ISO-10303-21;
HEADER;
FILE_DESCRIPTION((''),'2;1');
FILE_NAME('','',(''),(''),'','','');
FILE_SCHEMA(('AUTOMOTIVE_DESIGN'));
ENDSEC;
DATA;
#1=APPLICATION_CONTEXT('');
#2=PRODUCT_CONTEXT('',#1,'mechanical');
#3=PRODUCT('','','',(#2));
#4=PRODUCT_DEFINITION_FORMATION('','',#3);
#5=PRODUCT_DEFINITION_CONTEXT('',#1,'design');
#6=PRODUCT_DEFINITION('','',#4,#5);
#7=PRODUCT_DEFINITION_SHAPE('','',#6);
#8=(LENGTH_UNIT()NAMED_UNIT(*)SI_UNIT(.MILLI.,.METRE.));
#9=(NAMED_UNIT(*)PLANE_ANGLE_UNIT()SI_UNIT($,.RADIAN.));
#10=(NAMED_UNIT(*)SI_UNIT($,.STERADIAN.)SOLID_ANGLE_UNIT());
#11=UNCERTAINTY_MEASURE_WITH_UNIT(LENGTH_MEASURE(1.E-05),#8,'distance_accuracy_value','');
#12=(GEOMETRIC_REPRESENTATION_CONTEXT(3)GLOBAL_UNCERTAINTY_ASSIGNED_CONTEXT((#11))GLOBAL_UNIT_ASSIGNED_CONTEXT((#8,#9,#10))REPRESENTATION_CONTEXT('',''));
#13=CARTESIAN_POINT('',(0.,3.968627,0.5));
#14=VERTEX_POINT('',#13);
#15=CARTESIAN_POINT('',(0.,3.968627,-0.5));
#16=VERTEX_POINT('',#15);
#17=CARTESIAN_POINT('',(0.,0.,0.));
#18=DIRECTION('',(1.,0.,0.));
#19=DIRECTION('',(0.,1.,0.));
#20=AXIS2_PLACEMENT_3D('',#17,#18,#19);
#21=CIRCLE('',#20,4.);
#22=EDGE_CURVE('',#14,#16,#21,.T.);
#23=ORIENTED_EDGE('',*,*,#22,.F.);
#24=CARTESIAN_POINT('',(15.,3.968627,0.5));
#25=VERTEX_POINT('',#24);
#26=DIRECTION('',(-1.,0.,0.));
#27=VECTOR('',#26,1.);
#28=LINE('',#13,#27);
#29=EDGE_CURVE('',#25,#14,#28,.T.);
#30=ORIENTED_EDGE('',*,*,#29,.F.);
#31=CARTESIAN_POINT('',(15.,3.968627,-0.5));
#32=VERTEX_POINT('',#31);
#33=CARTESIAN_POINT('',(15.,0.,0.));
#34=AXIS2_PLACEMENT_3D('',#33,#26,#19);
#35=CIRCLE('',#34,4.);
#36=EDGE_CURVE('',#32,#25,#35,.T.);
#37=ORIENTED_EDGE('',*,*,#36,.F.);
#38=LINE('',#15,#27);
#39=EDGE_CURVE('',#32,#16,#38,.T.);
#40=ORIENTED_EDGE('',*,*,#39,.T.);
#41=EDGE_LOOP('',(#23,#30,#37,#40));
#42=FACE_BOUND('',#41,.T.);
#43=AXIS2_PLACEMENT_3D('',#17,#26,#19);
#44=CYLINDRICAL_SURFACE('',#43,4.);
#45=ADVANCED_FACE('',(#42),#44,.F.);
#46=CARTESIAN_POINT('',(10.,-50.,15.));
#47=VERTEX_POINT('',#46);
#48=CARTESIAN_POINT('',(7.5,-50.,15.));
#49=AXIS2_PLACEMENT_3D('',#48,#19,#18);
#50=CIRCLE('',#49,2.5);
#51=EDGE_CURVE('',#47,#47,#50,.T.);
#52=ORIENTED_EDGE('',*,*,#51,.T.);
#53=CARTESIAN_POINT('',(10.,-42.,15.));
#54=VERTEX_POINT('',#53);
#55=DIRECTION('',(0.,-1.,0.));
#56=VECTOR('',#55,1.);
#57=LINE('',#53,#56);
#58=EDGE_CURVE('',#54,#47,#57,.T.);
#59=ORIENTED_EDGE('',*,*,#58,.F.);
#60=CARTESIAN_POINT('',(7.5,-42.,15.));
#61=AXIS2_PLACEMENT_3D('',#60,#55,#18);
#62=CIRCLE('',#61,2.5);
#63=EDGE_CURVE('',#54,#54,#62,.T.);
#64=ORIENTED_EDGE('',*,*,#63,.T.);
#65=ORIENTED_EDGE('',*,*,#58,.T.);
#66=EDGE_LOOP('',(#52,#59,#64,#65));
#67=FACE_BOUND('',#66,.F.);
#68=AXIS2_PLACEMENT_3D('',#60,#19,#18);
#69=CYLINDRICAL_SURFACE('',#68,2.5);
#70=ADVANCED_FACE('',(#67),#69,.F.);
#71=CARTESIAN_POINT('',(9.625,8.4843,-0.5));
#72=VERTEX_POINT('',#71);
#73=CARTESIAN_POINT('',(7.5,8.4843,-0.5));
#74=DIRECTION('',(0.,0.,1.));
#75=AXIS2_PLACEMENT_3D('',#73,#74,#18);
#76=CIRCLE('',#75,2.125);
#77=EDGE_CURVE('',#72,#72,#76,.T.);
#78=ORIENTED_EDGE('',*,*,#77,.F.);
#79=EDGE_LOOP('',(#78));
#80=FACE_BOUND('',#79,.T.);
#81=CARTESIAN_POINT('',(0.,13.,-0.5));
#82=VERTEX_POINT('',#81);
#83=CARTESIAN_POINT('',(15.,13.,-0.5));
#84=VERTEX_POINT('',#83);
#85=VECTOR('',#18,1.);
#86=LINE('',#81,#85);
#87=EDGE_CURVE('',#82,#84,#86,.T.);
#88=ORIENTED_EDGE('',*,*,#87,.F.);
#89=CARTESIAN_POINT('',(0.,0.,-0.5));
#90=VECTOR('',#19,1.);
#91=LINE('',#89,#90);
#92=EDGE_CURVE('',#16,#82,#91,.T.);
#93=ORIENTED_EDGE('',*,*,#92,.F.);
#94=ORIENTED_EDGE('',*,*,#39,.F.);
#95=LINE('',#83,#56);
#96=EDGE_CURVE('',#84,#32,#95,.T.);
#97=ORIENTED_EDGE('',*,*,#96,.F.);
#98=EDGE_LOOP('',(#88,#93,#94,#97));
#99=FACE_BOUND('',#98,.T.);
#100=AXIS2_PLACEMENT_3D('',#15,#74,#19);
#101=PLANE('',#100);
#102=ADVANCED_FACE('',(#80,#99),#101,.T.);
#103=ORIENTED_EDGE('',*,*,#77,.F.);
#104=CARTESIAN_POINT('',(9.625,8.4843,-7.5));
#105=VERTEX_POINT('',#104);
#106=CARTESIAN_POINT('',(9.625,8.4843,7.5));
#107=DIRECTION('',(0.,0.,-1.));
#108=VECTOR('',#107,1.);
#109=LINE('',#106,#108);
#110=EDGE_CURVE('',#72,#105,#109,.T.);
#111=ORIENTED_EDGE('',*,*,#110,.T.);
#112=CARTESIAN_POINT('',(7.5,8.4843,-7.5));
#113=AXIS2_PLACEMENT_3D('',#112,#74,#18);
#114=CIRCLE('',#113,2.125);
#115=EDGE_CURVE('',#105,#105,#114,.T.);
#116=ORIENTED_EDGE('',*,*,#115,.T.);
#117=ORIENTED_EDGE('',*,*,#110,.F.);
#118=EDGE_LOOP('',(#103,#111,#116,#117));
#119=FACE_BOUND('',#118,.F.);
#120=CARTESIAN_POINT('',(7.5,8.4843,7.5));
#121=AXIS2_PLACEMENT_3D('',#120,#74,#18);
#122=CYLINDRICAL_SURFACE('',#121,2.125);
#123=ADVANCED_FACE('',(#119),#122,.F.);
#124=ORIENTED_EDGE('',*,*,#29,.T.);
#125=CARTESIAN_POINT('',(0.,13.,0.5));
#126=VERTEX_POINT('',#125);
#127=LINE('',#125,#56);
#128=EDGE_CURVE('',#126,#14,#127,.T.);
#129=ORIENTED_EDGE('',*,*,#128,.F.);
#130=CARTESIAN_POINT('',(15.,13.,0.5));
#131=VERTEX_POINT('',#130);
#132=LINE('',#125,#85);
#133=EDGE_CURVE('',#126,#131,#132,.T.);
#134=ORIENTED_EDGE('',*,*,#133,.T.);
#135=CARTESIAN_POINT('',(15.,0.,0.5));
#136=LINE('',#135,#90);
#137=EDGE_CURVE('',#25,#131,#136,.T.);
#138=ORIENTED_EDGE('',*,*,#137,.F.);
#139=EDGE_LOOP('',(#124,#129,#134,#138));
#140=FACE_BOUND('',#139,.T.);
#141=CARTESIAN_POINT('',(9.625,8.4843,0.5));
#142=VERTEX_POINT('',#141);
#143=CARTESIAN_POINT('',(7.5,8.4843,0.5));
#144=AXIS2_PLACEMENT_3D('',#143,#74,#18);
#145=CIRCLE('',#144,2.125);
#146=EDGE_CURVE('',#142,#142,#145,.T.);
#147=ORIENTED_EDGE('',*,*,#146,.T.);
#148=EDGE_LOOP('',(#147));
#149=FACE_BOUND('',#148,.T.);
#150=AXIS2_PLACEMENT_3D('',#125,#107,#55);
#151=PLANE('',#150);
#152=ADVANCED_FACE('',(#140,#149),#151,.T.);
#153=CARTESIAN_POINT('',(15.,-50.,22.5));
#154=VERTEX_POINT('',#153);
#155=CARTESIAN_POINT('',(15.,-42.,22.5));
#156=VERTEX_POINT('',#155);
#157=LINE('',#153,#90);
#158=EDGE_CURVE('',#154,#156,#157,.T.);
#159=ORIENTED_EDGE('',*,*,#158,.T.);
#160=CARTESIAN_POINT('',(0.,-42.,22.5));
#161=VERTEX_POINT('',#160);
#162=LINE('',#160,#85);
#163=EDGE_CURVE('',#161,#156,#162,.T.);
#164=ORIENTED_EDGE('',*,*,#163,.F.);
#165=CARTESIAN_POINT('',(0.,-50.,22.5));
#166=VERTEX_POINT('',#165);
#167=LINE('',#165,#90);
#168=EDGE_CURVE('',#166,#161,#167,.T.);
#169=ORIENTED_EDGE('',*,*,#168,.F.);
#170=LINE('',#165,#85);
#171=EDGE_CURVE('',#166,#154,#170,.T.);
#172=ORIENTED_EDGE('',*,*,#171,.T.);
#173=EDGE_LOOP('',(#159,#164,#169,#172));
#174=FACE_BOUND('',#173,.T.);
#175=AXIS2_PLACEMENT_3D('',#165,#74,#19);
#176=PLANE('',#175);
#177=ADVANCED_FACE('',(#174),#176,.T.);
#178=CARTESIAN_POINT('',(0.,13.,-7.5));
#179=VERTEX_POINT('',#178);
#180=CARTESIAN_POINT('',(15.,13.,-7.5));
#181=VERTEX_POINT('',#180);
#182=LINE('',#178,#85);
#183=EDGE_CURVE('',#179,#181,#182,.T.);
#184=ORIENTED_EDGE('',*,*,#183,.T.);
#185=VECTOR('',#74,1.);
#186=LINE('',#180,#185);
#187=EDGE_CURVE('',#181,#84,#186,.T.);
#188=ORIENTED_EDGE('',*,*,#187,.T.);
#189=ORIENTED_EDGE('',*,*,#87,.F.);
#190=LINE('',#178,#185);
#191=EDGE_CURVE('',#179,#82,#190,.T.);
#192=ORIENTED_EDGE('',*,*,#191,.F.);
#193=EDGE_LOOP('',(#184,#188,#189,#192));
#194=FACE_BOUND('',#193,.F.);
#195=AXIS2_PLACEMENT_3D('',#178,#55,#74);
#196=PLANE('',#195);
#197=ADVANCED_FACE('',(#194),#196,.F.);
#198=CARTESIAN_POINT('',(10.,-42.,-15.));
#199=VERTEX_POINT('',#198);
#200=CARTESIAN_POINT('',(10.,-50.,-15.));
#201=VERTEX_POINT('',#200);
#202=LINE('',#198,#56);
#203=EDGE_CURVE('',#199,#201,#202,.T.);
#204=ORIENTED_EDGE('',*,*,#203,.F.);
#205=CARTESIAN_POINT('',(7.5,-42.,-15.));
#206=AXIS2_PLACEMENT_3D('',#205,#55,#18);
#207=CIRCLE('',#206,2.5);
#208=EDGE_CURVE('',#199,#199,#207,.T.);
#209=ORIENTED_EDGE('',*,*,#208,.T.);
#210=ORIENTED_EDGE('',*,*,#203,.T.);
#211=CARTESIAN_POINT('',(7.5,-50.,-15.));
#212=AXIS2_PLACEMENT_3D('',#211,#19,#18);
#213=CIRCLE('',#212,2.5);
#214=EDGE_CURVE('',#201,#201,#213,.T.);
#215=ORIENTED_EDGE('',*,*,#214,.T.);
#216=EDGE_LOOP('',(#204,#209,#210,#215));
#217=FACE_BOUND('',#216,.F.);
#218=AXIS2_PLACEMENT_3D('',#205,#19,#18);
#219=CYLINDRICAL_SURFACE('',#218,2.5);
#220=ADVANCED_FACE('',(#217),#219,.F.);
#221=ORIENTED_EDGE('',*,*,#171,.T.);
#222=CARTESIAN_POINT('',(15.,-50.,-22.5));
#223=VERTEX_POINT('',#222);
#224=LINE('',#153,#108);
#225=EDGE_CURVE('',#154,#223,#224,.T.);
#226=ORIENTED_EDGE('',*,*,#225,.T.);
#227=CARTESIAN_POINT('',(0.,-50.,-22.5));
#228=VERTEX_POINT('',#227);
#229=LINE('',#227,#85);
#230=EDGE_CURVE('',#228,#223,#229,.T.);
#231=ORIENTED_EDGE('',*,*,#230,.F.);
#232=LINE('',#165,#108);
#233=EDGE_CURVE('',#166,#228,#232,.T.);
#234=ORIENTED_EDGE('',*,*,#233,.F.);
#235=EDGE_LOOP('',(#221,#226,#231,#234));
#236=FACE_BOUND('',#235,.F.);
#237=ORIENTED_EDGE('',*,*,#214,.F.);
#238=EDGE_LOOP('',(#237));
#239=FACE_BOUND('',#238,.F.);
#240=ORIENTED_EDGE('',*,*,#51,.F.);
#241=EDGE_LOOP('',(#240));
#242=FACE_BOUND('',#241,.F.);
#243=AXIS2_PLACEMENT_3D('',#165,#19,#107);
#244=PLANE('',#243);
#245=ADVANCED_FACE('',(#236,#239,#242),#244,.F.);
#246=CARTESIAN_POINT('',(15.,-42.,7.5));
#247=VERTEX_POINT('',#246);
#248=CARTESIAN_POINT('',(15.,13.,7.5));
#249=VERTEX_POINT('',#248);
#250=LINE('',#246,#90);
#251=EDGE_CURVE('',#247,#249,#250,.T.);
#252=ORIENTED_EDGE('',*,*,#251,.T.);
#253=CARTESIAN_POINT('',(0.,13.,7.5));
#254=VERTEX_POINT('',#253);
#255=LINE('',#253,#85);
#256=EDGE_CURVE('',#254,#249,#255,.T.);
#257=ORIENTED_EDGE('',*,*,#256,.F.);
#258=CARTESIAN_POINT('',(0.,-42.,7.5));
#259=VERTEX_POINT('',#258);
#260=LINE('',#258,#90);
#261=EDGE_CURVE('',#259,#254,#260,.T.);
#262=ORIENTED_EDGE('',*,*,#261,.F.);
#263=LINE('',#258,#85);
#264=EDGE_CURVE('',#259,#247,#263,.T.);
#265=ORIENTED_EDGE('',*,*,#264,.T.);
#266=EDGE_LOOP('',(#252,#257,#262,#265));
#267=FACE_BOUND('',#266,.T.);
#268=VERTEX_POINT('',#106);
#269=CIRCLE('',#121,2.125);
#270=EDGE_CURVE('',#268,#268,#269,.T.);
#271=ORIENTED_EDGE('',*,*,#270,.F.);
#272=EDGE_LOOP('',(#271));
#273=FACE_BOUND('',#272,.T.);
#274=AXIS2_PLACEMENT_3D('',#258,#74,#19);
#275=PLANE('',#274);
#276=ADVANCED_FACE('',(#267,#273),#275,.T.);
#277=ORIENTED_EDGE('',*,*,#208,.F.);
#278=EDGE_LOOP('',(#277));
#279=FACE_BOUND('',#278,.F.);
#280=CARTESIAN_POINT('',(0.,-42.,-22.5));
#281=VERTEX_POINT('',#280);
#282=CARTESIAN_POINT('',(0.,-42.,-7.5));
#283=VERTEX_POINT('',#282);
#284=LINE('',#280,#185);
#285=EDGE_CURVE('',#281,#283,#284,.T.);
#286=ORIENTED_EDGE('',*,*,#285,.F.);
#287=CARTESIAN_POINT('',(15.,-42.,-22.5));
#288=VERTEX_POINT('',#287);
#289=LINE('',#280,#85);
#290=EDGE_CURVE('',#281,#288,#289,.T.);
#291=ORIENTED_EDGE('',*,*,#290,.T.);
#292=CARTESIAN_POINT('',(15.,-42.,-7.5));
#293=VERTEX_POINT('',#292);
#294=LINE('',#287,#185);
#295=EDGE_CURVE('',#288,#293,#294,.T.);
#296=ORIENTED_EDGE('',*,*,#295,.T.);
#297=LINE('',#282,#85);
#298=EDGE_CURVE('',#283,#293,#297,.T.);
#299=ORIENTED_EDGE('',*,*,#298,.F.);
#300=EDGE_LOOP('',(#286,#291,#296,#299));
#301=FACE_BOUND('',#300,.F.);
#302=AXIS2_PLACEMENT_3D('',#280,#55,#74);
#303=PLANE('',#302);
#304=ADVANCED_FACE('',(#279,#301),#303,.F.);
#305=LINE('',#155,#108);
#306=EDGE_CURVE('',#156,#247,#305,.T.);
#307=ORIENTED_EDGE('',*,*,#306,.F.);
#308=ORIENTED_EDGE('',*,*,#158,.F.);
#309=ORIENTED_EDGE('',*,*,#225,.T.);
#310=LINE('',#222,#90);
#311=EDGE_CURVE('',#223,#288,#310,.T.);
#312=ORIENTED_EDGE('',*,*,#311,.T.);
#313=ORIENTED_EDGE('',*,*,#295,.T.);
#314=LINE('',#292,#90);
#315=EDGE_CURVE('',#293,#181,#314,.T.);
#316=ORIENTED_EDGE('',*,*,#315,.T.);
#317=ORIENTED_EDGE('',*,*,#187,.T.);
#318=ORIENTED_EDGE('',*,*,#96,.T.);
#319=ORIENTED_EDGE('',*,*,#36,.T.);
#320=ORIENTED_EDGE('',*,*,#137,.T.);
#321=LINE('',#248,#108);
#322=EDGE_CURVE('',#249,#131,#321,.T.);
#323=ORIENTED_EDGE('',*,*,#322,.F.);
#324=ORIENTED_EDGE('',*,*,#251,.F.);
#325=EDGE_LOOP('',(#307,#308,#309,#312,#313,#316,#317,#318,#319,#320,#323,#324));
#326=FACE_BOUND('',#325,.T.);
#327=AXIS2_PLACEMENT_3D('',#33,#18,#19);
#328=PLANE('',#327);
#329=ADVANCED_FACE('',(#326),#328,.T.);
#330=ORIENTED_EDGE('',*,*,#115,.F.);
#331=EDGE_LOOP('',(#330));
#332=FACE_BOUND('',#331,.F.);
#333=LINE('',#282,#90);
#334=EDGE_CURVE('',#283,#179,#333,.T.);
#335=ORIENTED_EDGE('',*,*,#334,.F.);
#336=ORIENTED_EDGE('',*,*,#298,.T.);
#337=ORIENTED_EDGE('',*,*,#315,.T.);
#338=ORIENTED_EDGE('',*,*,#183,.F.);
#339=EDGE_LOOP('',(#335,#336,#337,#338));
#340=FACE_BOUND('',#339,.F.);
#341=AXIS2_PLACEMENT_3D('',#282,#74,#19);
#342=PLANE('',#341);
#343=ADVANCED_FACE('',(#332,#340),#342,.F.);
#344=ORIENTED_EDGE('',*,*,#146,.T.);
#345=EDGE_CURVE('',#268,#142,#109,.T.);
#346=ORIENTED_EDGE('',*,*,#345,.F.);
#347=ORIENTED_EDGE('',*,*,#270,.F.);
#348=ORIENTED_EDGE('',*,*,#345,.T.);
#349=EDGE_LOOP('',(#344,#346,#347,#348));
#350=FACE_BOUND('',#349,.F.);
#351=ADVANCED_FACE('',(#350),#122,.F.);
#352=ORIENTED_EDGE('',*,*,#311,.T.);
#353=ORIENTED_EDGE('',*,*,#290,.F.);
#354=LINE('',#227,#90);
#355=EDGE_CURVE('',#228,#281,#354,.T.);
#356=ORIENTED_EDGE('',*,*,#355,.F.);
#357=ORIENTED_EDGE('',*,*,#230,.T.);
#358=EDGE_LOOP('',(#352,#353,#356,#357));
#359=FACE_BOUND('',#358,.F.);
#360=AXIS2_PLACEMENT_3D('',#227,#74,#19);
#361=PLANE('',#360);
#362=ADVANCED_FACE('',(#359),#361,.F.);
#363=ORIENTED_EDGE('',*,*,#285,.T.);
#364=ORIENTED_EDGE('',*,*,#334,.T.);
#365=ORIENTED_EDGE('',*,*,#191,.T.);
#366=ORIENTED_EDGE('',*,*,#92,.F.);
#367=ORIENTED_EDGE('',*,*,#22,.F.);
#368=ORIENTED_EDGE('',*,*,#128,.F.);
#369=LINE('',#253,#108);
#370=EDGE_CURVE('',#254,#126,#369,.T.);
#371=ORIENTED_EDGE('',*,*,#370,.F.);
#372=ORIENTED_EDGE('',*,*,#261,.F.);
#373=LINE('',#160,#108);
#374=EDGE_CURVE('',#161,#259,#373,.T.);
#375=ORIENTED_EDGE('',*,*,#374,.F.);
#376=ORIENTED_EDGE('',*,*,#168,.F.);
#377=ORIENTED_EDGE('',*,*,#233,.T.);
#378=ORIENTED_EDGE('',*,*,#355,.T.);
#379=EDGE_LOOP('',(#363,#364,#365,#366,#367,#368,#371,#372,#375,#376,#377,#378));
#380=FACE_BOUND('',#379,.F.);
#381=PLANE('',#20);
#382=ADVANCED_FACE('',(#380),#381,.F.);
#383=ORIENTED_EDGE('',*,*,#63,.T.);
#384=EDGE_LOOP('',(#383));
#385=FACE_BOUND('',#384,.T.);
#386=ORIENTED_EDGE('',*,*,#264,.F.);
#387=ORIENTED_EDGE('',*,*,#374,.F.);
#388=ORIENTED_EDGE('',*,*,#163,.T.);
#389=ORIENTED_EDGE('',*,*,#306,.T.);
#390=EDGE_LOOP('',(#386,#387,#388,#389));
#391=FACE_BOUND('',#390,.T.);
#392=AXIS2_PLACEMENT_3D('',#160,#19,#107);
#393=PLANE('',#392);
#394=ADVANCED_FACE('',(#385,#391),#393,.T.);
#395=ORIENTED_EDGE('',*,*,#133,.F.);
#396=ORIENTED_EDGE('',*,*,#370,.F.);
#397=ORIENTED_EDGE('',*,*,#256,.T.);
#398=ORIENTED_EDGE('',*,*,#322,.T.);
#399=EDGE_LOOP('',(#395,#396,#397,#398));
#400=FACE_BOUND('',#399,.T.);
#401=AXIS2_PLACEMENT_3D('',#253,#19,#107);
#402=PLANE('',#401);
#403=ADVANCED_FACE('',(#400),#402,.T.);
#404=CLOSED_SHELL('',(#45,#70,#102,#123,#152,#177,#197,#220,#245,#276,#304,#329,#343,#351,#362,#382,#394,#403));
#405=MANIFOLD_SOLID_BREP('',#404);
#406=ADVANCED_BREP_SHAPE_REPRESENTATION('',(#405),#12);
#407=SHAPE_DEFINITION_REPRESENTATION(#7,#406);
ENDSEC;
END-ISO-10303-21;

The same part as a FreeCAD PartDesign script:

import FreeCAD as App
import Part
import Sketcher
from FreeCAD import Vector
Q = App.Units.Quantity


def add_polygon(sketch, points):
    """Adds a closed chain of lines whose ends are joined by coincident constraints."""
    first, n = sketch.GeometryCount, len(points)
    for a, b in zip(points, points[1:] + points[:1]):
        sketch.addGeometry(Part.LineSegment(App.Vector(*a, 0), App.Vector(*b, 0)), False)
    for i in range(n):
        sketch.addConstraint(Sketcher.Constraint("Coincident", first + i, 2, first + (i + 1) % n, 1))

doc = App.newDocument("Part")
body = doc.addObject("PartDesign::Body", "Body")

# Sketch on YZ plane
sketch1 = body.newObject("Sketcher::SketchObject", "Sketch")
sketch1.AttachmentSupport = (doc.getObject("YZ_Plane"), [""])
sketch1.MapMode = "FlatFace"
add_polygon(sketch1, [(-42, 22.5), (-50, 22.5), (-50, -22.5), (-42, -22.5), (-42, -7.5), (13, -7.5), (13, -0.5), (0, -0.5), (0, 0.5), (13, 0.5), (13, 7.5), (-42, 7.5)])  # lines 0-11
sketch1.addConstraint(Sketcher.Constraint("Horizontal", 0))
sketch1.addConstraint(Sketcher.Constraint("Vertical", 1))
sketch1.addConstraint(Sketcher.Constraint("Horizontal", 2))
sketch1.addConstraint(Sketcher.Constraint("Vertical", 3))
sketch1.addConstraint(Sketcher.Constraint("Horizontal", 4))
sketch1.addConstraint(Sketcher.Constraint("Vertical", 5))
sketch1.addConstraint(Sketcher.Constraint("Horizontal", 6))
sketch1.addConstraint(Sketcher.Constraint("Vertical", 7))
sketch1.addConstraint(Sketcher.Constraint("Horizontal", 8))
sketch1.addConstraint(Sketcher.Constraint("Vertical", 9))
sketch1.addConstraint(Sketcher.Constraint("Horizontal", 10))
sketch1.addConstraint(Sketcher.Constraint("Vertical", 11))
sketch1.addConstraint(Sketcher.Constraint("Symmetric", 6, 2, 7, 2, -1, 1))
sketch1.addConstraint(Sketcher.Constraint("Symmetric", 4, 2, 9, 2, -1))
sketch1.addConstraint(Sketcher.Constraint("Symmetric", 2, 2, 11, 2, -1))
sketch1.addConstraint(Sketcher.Constraint("DistanceX", 0, 2, 0, 1, Q("8 mm")))
sketch1.addConstraint(Sketcher.Constraint("DistanceX", 4, 1, 4, 2, Q("55 mm")))
sketch1.addConstraint(Sketcher.Constraint("DistanceY", 3, 1, 3, 2, Q("15 mm")))
sketch1.addConstraint(Sketcher.Constraint("DistanceY", 5, 1, 5, 2, Q("7 mm")))
sketch1.addConstraint(Sketcher.Constraint("DistanceY", 7, 1, 7, 2, Q("1 mm")))
sketch1.addConstraint(Sketcher.Constraint("DistanceX", 0, 2, -1, 1, Q("50 mm")))
pad1 = body.newObject("PartDesign::Pad", "Pad")
pad1.Profile = sketch1
pad1.Length = 15

# Sketch on YZ plane
sketch2 = body.newObject("Sketcher::SketchObject", "Sketch001")
sketch2.AttachmentSupport = (doc.getObject("YZ_Plane"), [""])
sketch2.MapMode = "FlatFace"
sketch2.addGeometry(Part.Circle(Vector(0, 0, 0), Vector(0, 0, 1), 4), False)
sketch2.addConstraint(Sketcher.Constraint("Coincident", 0, 3, -1, 1))
sketch2.addConstraint(Sketcher.Constraint("Diameter", 0, Q("8 mm")))
pocket1 = body.newObject("PartDesign::Pocket", "Pocket")
pocket1.Profile = sketch2
pocket1.Type = "ThroughAll"
pocket1.Reversed = True

# Sketch on XZ plane
sketch3 = body.newObject("Sketcher::SketchObject", "Sketch002")
sketch3.AttachmentSupport = (doc.getObject("XZ_Plane"), [""])
sketch3.MapMode = "FlatFace"
sketch3.AttachmentOffset = App.Placement(Vector(0, 0, 42), App.Rotation())
sketch3.addGeometry(Part.Circle(Vector(7.5, 15, 0), Vector(0, 0, 1), 2.5), False)
sketch3.addGeometry(Part.Circle(Vector(7.5, -15, 0), Vector(0, 0, 1), 2.5), False)
sketch3.addConstraint(Sketcher.Constraint("Equal", 0, 1))
sketch3.addConstraint(Sketcher.Constraint("Symmetric", 0, 3, 1, 3, -1))
sketch3.addConstraint(Sketcher.Constraint("Diameter", 0, Q("5 mm")))
sketch3.addConstraint(Sketcher.Constraint("DistanceY", -1, 1, 0, 3, Q("15 mm")))
sketch3.addConstraint(Sketcher.Constraint("DistanceX", -1, 1, 0, 3, Q("7.5 mm")))
pocket2 = body.newObject("PartDesign::Pocket", "Pocket001")
pocket2.Profile = sketch3
pocket2.Type = "ThroughAll"
pocket2.Reversed = True

# Sketch on XY plane
sketch4 = body.newObject("Sketcher::SketchObject", "Sketch003")
sketch4.AttachmentSupport = (doc.getObject("XY_Plane"), [""])
sketch4.MapMode = "FlatFace"
sketch4.AttachmentOffset = App.Placement(Vector(0, 0, 7.5), App.Rotation())
sketch4.addGeometry(Part.Circle(Vector(7.5, 8.4843, 0), Vector(0, 0, 1), 2.125), False)
sketch4.addConstraint(Sketcher.Constraint("Diameter", 0, Q("4.25 mm")))
sketch4.addConstraint(Sketcher.Constraint("DistanceX", -1, 1, 0, 3, Q("7.5 mm")))
sketch4.addConstraint(Sketcher.Constraint("DistanceY", -1, 1, 0, 3, Q("8.4843 mm")))
pocket3 = body.newObject("PartDesign::Pocket", "Pocket002")
pocket3.Profile = sketch4
pocket3.Type = "ThroughAll"

doc.recompute()
